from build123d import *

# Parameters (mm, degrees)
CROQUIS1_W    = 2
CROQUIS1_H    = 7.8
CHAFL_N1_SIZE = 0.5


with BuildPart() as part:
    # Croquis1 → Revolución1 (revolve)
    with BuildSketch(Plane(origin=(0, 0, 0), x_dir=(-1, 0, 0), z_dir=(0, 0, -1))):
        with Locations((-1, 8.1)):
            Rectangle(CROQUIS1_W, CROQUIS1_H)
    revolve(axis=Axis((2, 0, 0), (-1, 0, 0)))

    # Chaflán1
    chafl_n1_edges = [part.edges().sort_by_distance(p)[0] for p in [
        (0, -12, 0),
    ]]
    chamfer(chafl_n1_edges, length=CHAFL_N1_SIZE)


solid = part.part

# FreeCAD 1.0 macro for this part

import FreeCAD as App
import Part
import Sketcher

V = App.Vector
Q = App.Units.Quantity


def edges_at(feature, points):
    """Names of the edges that pass closest to the given points."""
    edges = feature.Shape.Edges
    near = lambda p: min(range(len(edges)), key=lambda i: edges[i].distToShape(Part.Vertex(*p))[0])
    return sorted({f"Edge{near(p) + 1}" for p in points})


def add_polygon(sketch, points):
    """Adds a closed chain of lines whose ends are joined by coincident constraints."""
    first, n = sketch.GeometryCount, len(points)
    for a, b in zip(points, points[1:] + points[:1]):
        sketch.addGeometry(Part.LineSegment(App.Vector(*a, 0), App.Vector(*b, 0)), False)
    for i in range(n):
        sketch.addConstraint(Sketcher.Constraint("Coincident", first + i, 2, first + (i + 1) % n, 1))

doc = App.newDocument("Part")
params = doc.addObject("Spreadsheet::Sheet", "Params")
for row, (alias, value) in enumerate([
    ("sketch1_width", "2 mm"),
    ("sketch1_height", "7.8 mm"),
    ("revolution_angle", "360 deg"),
    ("chamfer_size", "0.5 mm"),
], start=1):
    params.set(f"A{row}", alias)
    params.set(f"B{row}", "=" + value)
    params.setAlias(f"B{row}", alias)

body = doc.addObject("PartDesign::Body", "Body")

sketch1 = body.newObject("Sketcher::SketchObject", "Sketch")
sketch1.AttachmentSupport = (doc.getObject("XY_Plane"), [""])
sketch1.MapMode = "FlatFace"
add_polygon(sketch1, [(2, 12), (2, 4.2), (0, 4.2), (0, 12)])
sketch1.addConstraint([
    Sketcher.Constraint("Vertical", 0),
    Sketcher.Constraint("Horizontal", 1),
    Sketcher.Constraint("Vertical", 2),
    Sketcher.Constraint("Horizontal", 3),
    Sketcher.Constraint("PointOnObject", 1, 2, -2),
    Sketcher.Constraint("DistanceX", 1, 2, 1, 1, Q("2 mm")),
    Sketcher.Constraint("DistanceY", 0, 2, 0, 1, Q("7.8 mm")),
    Sketcher.Constraint("DistanceY", -1, 1, 2, 2, Q("12 mm")),
])
sketch1.setExpression("Constraints[9]", "Params.sketch1_width")
sketch1.setExpression("Constraints[10]", "Params.sketch1_height")
revolution = body.newObject("PartDesign::Revolution", "Revolution")
revolution.Profile = sketch1
revolution.ReferenceAxis = (sketch1, ["H_Axis"])
revolution.setExpression("Angle", "Params.revolution_angle")
doc.recompute()

chamfer = body.newObject("PartDesign::Chamfer", "Chamfer")
chamfer.Base = (revolution, edges_at(revolution, [(0, -12, 0)]))
chamfer.setExpression("Size", "Params.chamfer_size")

doc.recompute()
